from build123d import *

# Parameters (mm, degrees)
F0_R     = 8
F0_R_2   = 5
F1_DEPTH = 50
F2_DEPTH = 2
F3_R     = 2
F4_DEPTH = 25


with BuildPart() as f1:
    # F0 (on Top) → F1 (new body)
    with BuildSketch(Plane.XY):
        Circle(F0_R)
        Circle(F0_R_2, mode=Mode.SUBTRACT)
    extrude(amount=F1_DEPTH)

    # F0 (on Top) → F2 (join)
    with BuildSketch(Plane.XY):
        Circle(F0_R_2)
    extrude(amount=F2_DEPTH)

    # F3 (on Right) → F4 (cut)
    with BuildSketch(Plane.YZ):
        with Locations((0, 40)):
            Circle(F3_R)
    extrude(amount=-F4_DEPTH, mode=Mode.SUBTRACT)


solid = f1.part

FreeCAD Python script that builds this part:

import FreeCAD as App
import Part
import Sketcher
from FreeCAD import Vector

doc = App.newDocument("Part")
params = doc.addObject("Spreadsheet::Sheet", "Params")
for row, (alias, value) in enumerate([
    ("sketch1_diameter", "16 mm"),
    ("sketch1_diameter2", "10 mm"),
    ("pad1_length", "50 mm"),
    ("sketch2_diameter", "10 mm"),
    ("pad2_length", "2 mm"),
    ("sketch3_diameter", "4 mm"),
    ("pocket1_length", "25 mm"),
], start=1):
    params.set(f"A{row}", alias)
    params.set(f"B{row}", "=" + value)
    params.setAlias(f"B{row}", alias)

body = doc.addObject("PartDesign::Body", "Body")

# Sketch on XY plane
sketch1 = doc.addObject("Sketcher::SketchObject", "Sketch")
body.addObject(sketch1)
sketch1.AttachmentSupport = (doc.XY_Plane, [""])
sketch1.MapMode = "FlatFace"
sketch1.addGeometry(Part.Circle(Vector(0, 0, 0), Vector(0, 0, 1), 8), False)
sketch1.addGeometry(Part.Circle(Vector(0, 0, 0), Vector(0, 0, 1), 5), False)
sketch1.addConstraint(Sketcher.Constraint("Coincident", 0, 3, -1, 1))
sketch1.addConstraint(Sketcher.Constraint("Coincident", 1, 3, -1, 1))
sketch1.addConstraint(Sketcher.Constraint("Diameter", 0, 16.0))
sketch1.addConstraint(Sketcher.Constraint("Diameter", 1, 10.0))
sketch1.setExpression("Constraints[2]", "Params.sketch1_diameter")
sketch1.setExpression("Constraints[3]", "Params.sketch1_diameter2")
pad1 = doc.addObject("PartDesign::Pad", "Pad")
body.addObject(pad1)
pad1.Profile = sketch1
pad1.setExpression("Length", "Params.pad1_length")

# Sketch on XY plane
sketch2 = doc.addObject("Sketcher::SketchObject", "Sketch001")
body.addObject(sketch2)
sketch2.AttachmentSupport = (doc.XY_Plane, [""])
sketch2.MapMode = "FlatFace"
sketch2.addGeometry(Part.Circle(Vector(0, 0, 0), Vector(0, 0, 1), 5), False)
sketch2.addConstraint(Sketcher.Constraint("Coincident", 0, 3, -1, 1))
sketch2.addConstraint(Sketcher.Constraint("Diameter", 0, 10.0))
sketch2.setExpression("Constraints[1]", "Params.sketch2_diameter")
pad2 = doc.addObject("PartDesign::Pad", "Pad001")
body.addObject(pad2)
pad2.Profile = sketch2
pad2.setExpression("Length", "Params.pad2_length")

# Sketch on YZ plane
sketch3 = doc.addObject("Sketcher::SketchObject", "Sketch002")
body.addObject(sketch3)
sketch3.AttachmentSupport = (doc.YZ_Plane, [""])
sketch3.MapMode = "FlatFace"
sketch3.addGeometry(Part.Circle(Vector(0, 40, 0), Vector(0, 0, 1), 2), False)
sketch3.addConstraint(Sketcher.Constraint("PointOnObject", 0, 3, -2))
sketch3.addConstraint(Sketcher.Constraint("Diameter", 0, 4.0))
sketch3.addConstraint(Sketcher.Constraint("DistanceY", -1, 1, 0, 3, 40.0))
sketch3.setExpression("Constraints[1]", "Params.sketch3_diameter")
pocket1 = doc.addObject("PartDesign::Pocket", "Pocket")
body.addObject(pocket1)
pocket1.Profile = sketch3
pocket1.setExpression("Length", "Params.pocket1_length")

doc.recompute()
